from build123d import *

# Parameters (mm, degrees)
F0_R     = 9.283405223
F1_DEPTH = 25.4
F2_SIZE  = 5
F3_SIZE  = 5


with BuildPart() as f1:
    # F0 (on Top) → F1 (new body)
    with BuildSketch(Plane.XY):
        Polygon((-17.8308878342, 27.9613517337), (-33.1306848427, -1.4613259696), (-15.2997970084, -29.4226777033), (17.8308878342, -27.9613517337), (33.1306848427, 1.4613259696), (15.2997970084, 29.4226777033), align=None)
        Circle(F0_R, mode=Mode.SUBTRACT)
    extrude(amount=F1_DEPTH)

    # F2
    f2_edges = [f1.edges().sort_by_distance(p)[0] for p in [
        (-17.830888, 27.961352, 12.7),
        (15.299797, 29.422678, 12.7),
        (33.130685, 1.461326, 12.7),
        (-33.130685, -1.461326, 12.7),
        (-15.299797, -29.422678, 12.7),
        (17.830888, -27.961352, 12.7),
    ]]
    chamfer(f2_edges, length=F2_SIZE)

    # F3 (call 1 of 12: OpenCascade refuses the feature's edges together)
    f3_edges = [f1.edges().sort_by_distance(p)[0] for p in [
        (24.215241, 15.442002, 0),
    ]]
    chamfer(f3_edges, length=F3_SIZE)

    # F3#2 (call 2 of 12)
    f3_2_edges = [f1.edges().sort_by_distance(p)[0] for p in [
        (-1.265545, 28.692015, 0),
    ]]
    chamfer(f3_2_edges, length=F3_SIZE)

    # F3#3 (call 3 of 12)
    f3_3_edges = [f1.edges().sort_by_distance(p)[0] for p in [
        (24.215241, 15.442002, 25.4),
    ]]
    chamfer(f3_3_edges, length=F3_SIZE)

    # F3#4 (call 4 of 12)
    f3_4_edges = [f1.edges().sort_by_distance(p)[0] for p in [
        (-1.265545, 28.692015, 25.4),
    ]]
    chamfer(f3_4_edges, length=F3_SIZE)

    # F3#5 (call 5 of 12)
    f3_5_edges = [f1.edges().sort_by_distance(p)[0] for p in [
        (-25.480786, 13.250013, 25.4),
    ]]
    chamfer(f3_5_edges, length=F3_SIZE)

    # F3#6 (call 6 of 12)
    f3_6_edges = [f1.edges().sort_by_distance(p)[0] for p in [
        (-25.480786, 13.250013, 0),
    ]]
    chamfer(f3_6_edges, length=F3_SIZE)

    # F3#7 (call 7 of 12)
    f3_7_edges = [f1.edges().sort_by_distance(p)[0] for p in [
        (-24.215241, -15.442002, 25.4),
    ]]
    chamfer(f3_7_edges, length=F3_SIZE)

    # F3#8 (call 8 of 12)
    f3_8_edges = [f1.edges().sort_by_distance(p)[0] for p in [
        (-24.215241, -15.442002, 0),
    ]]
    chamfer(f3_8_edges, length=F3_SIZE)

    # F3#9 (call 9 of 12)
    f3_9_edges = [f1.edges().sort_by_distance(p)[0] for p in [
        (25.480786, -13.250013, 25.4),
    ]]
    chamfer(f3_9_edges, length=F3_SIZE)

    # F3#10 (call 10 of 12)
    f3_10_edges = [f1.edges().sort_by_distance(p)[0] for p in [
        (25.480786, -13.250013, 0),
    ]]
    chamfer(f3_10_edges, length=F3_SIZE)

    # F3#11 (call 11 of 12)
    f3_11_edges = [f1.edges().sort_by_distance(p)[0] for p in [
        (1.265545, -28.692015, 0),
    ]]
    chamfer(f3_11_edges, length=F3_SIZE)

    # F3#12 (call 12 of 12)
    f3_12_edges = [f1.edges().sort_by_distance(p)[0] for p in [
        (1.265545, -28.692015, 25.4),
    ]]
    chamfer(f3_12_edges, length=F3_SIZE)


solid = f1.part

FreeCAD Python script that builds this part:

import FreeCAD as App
import Part
import Sketcher
from FreeCAD import Vector


def edges_at(feature, points):
    """Names of the edges that pass closest to the given points."""
    edges = feature.Shape.Edges
    near = lambda p: min(range(len(edges)), key=lambda i: edges[i].distToShape(Part.Vertex(*p))[0])
    return sorted({f"Edge{near(p) + 1}" for p in points})

doc = App.newDocument("Part")
params = doc.addObject("Spreadsheet::Sheet", "Params")
for row, (alias, value) in enumerate([
    ("pad1_length", "25.4 mm"),
    ("chamfer_size", "5 mm"),
    ("chamfer2_size", "5 mm"),
    ("chamfer3_size", "5 mm"),
    ("chamfer4_size", "5 mm"),
    ("chamfer5_size", "5 mm"),
    ("chamfer6_size", "5 mm"),
    ("chamfer7_size", "5 mm"),
    ("chamfer8_size", "5 mm"),
    ("chamfer9_size", "5 mm"),
    ("chamfer10_size", "5 mm"),
    ("chamfer11_size", "5 mm"),
    ("chamfer12_size", "5 mm"),
    ("chamfer13_size", "5 mm"),
], start=1):
    params.set(f"A{row}", alias)
    params.set(f"B{row}", "=" + value)
    params.setAlias(f"B{row}", alias)

body = doc.addObject("PartDesign::Body", "Body")

# Sketch on XY plane
sketch1 = body.newObject("Sketcher::SketchObject", "Sketch")
sketch1.AttachmentSupport = (doc.getObject("XY_Plane"), [""])
sketch1.MapMode = "FlatFace"
sketch1.addGeometry([
    Part.LineSegment(Vector(-18, 28, 0), Vector(-33, -1, 0)),  # 0
    Part.LineSegment(Vector(-33, -1, 0), Vector(-15, -29, 0)),  # 1
    Part.LineSegment(Vector(-15, -29, 0), Vector(18, -28, 0)),  # 2
    Part.LineSegment(Vector(18, -28, 0), Vector(33, 1, 0)),  # 3
    Part.LineSegment(Vector(33, 1, 0), Vector(15, 29, 0)),  # 4
    Part.LineSegment(Vector(15, 29, 0), Vector(-18, 28, 0)),  # 5
    Part.Circle(Vector(0, 0, 0), Vector(0, 0, 1), 9),  # 6
], False)
sketch1.addConstraint([
    Sketcher.Constraint("Coincident", 0, 2, 1, 1),
    Sketcher.Constraint("Coincident", 1, 2, 2, 1),
    Sketcher.Constraint("Coincident", 2, 2, 3, 1),
    Sketcher.Constraint("Coincident", 3, 2, 4, 1),
    Sketcher.Constraint("Coincident", 4, 2, 5, 1),
    Sketcher.Constraint("Coincident", 5, 2, 0, 1),
    Sketcher.Constraint("Coincident", 6, 3, -1, 1),
    Sketcher.Constraint("Symmetric", 0, 2, 3, 2, -1, 1),
    Sketcher.Constraint("Symmetric", 1, 2, 4, 2, -1, 1),
    Sketcher.Constraint("Symmetric", 2, 2, 5, 2, -1, 1),
    Sketcher.Constraint("Equal", 0, 1),
    Sketcher.Constraint("Equal", 1, 2),
    Sketcher.Constraint("Diameter", 6, 18.56681),
    Sketcher.Constraint("DistanceY", 2, 2, -1, 1, 27.961352),
    Sketcher.Constraint("DistanceY", 1, 2, 0, 2, 27.961352),
    Sketcher.Constraint("DistanceX", 1, 2, 3, 2, 48.430482),
    Sketcher.Constraint("DistanceX", 0, 2, 3, 2, 66.26137),
])
pad1 = body.newObject("PartDesign::Pad", "Pad")
pad1.Profile = sketch1
pad1.setExpression("Length", "Params.pad1_length")
doc.recompute()

chamfer = body.newObject("PartDesign::Chamfer", "Chamfer")
chamfer.Base = (pad1, edges_at(pad1, [
    (-17.831, 27.961, 12.7),
    (15.3, 29.423, 12.7),
    (33.131, 1.461, 12.7),
    (-33.131, -1.461, 12.7),
    (-15.3, -29.423, 12.7),
    (17.831, -27.961, 12.7),
]))
chamfer.setExpression("Size", "Params.chamfer_size")
doc.recompute()

chamfer2 = body.newObject("PartDesign::Chamfer", "Chamfer001")
chamfer2.Base = (chamfer, edges_at(chamfer, [(24.215, 15.442, 0)]))
chamfer2.setExpression("Size", "Params.chamfer2_size")
doc.recompute()

chamfer3 = body.newObject("PartDesign::Chamfer", "Chamfer002")
chamfer3.Base = (chamfer2, edges_at(chamfer2, [(-1.652, 28.675, 0)]))
chamfer3.setExpression("Size", "Params.chamfer3_size")
doc.recompute()

chamfer4 = body.newObject("PartDesign::Chamfer", "Chamfer003")
chamfer4.Base = (chamfer3, edges_at(chamfer3, [(24.215, 15.442, 25.4)]))
chamfer4.setExpression("Size", "Params.chamfer4_size")
doc.recompute()

chamfer5 = body.newObject("PartDesign::Chamfer", "Chamfer004")
chamfer5.Base = (chamfer4, edges_at(chamfer4, [(-1.652, 28.675, 25.4)]))
chamfer5.setExpression("Size", "Params.chamfer5_size")
doc.recompute()

chamfer6 = body.newObject("PartDesign::Chamfer", "Chamfer005")
chamfer6.Base = (chamfer5, edges_at(chamfer5, [(-25.659, 12.907, 25.4)]))
chamfer6.setExpression("Size", "Params.chamfer6_size")
doc.recompute()

chamfer7 = body.newObject("PartDesign::Chamfer", "Chamfer006")
chamfer7.Base = (chamfer6, edges_at(chamfer6, [(-25.659, 12.907, 0)]))
chamfer7.setExpression("Size", "Params.chamfer7_size")
doc.recompute()

chamfer8 = body.newObject("PartDesign::Chamfer", "Chamfer007")
chamfer8.Base = (chamfer7, edges_at(chamfer7, [(-24.007, -15.768, 25.4)]))
chamfer8.setExpression("Size", "Params.chamfer8_size")
doc.recompute()

chamfer9 = body.newObject("PartDesign::Chamfer", "Chamfer008")
chamfer9.Base = (chamfer8, edges_at(chamfer8, [(-24.007, -15.768, 0)]))
chamfer9.setExpression("Size", "Params.chamfer9_size")
doc.recompute()

chamfer10 = body.newObject("PartDesign::Chamfer", "Chamfer009")
chamfer10.Base = (chamfer9, edges_at(chamfer9, [(25.302, -13.593, 25.4)]))
chamfer10.setExpression("Size", "Params.chamfer10_size")
doc.recompute()

chamfer11 = body.newObject("PartDesign::Chamfer", "Chamfer010")
chamfer11.Base = (chamfer10, edges_at(chamfer10, [(25.302, -13.593, 0)]))
chamfer11.setExpression("Size", "Params.chamfer11_size")
doc.recompute()

chamfer12 = body.newObject("PartDesign::Chamfer", "Chamfer011")
chamfer12.Base = (chamfer11, edges_at(chamfer11, [(1.266, -28.692, 0)]))
chamfer12.setExpression("Size", "Params.chamfer12_size")
doc.recompute()

chamfer13 = body.newObject("PartDesign::Chamfer", "Chamfer012")
chamfer13.Base = (chamfer12, edges_at(chamfer12, [(1.266, -28.692, 25.4)]))
chamfer13.setExpression("Size", "Params.chamfer13_size")

doc.recompute()
